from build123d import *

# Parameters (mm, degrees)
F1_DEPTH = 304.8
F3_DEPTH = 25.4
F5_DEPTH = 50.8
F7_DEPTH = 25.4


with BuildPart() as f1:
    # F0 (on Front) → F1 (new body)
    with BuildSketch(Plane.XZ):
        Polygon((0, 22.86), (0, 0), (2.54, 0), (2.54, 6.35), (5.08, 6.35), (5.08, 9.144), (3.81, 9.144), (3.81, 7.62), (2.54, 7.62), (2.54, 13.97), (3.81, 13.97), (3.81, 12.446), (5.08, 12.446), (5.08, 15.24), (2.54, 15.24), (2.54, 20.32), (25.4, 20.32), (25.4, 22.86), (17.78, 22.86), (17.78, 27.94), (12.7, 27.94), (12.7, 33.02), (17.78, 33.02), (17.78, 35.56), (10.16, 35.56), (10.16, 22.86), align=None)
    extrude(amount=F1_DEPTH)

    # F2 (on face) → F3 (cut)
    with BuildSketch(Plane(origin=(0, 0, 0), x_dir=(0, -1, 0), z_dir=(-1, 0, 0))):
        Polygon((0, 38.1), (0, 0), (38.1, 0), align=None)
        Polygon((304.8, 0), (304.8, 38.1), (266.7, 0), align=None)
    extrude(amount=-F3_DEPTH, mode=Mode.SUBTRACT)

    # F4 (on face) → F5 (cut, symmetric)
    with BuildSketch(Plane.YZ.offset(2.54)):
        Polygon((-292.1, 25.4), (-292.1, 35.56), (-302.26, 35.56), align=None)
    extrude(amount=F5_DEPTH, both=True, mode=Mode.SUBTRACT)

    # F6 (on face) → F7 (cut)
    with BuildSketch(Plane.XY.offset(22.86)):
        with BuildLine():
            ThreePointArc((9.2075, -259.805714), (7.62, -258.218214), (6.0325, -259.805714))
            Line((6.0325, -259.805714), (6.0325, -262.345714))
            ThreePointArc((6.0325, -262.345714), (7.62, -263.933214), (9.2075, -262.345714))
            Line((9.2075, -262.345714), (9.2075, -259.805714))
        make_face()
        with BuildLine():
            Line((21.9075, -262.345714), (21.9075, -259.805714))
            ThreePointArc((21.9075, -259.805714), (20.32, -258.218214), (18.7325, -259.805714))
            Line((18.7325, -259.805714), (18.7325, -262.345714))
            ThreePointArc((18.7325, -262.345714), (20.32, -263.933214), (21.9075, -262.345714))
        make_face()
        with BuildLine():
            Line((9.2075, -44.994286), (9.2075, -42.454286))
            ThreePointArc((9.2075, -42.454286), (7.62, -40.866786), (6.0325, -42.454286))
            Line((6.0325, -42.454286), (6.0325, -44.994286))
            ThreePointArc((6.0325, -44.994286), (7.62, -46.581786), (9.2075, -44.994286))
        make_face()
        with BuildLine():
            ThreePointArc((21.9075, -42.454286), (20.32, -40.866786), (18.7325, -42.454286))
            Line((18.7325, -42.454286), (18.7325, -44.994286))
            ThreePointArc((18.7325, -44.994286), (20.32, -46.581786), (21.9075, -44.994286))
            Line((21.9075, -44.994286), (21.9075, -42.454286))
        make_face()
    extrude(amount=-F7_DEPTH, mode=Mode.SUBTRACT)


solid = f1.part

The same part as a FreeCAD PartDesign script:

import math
import FreeCAD as App
import Part
import Sketcher
Q = App.Units.Quantity

doc = App.newDocument("Part")
body = doc.addObject("PartDesign::Body", "Body")

sketch1 = body.newObject("Sketcher::SketchObject", "Sketch")
sketch1.AttachmentSupport = (doc.getObject("XZ_Plane"), [""])
sketch1.MapMode = "FlatFace"
sketch1.addGeometry([
    Part.LineSegment(App.Vector(0, 22.9, 0), App.Vector(0, 0, 0)),
    Part.LineSegment(App.Vector(0, 0, 0), App.Vector(2.5, 0, 0)),
    Part.LineSegment(App.Vector(2.5, 0, 0), App.Vector(2.5, 6.3, 0)),
    Part.LineSegment(App.Vector(2.5, 6.3, 0), App.Vector(5.1, 6.3, 0)),
    Part.LineSegment(App.Vector(5.1, 6.3, 0), App.Vector(5.1, 9.1, 0)),
    Part.LineSegment(App.Vector(5.1, 9.1, 0), App.Vector(3.8, 9.1, 0)),
    Part.LineSegment(App.Vector(3.8, 9.1, 0), App.Vector(3.8, 7.6, 0)),
    Part.LineSegment(App.Vector(3.8, 7.6, 0), App.Vector(2.5, 7.6, 0)),
    Part.LineSegment(App.Vector(2.5, 7.6, 0), App.Vector(2.5, 14, 0)),
    Part.LineSegment(App.Vector(2.5, 14, 0), App.Vector(3.8, 14, 0)),
    Part.LineSegment(App.Vector(3.8, 14, 0), App.Vector(3.8, 12.4, 0)),
    Part.LineSegment(App.Vector(3.8, 12.4, 0), App.Vector(5.1, 12.4, 0)),
    Part.LineSegment(App.Vector(5.1, 12.4, 0), App.Vector(5.1, 15.2, 0)),
    Part.LineSegment(App.Vector(5.1, 15.2, 0), App.Vector(2.5, 15.2, 0)),
    Part.LineSegment(App.Vector(2.5, 15.2, 0), App.Vector(2.5, 20.3, 0)),
    Part.LineSegment(App.Vector(2.5, 20.3, 0), App.Vector(25.4, 20.3, 0)),
    Part.LineSegment(App.Vector(25.4, 20.3, 0), App.Vector(25.4, 22.9, 0)),
    Part.LineSegment(App.Vector(25.4, 22.9, 0), App.Vector(17.8, 22.9, 0)),
    Part.LineSegment(App.Vector(17.8, 22.9, 0), App.Vector(17.8, 27.9, 0)),
    Part.LineSegment(App.Vector(17.8, 27.9, 0), App.Vector(12.7, 27.9, 0)),
    Part.LineSegment(App.Vector(12.7, 27.9, 0), App.Vector(12.7, 33, 0)),
    Part.LineSegment(App.Vector(12.7, 33, 0), App.Vector(17.8, 33, 0)),
    Part.LineSegment(App.Vector(17.8, 33, 0), App.Vector(17.8, 35.6, 0)),
    Part.LineSegment(App.Vector(17.8, 35.6, 0), App.Vector(10.2, 35.6, 0)),
    Part.LineSegment(App.Vector(10.2, 35.6, 0), App.Vector(10.2, 22.9, 0)),
    Part.LineSegment(App.Vector(10.2, 22.9, 0), App.Vector(0, 22.9, 0)),
], False)
sketch1.addConstraint([
    Sketcher.Constraint("Coincident", 0, 2, 1, 1),
    Sketcher.Constraint("Coincident", 1, 2, 2, 1),
    Sketcher.Constraint("Coincident", 2, 2, 3, 1),
    Sketcher.Constraint("Coincident", 3, 2, 4, 1),
    Sketcher.Constraint("Coincident", 4, 2, 5, 1),
    Sketcher.Constraint("Coincident", 5, 2, 6, 1),
    Sketcher.Constraint("Coincident", 6, 2, 7, 1),
    Sketcher.Constraint("Coincident", 7, 2, 8, 1),
    Sketcher.Constraint("Coincident", 8, 2, 9, 1),
    Sketcher.Constraint("Coincident", 9, 2, 10, 1),
    Sketcher.Constraint("Coincident", 10, 2, 11, 1),
    Sketcher.Constraint("Coincident", 11, 2, 12, 1),
    Sketcher.Constraint("Coincident", 12, 2, 13, 1),
    Sketcher.Constraint("Coincident", 13, 2, 14, 1),
    Sketcher.Constraint("Coincident", 14, 2, 15, 1),
    Sketcher.Constraint("Coincident", 15, 2, 16, 1),
    Sketcher.Constraint("Coincident", 16, 2, 17, 1),
    Sketcher.Constraint("Coincident", 17, 2, 18, 1),
    Sketcher.Constraint("Coincident", 18, 2, 19, 1),
    Sketcher.Constraint("Coincident", 19, 2, 20, 1),
    Sketcher.Constraint("Coincident", 20, 2, 21, 1),
    Sketcher.Constraint("Coincident", 21, 2, 22, 1),
    Sketcher.Constraint("Coincident", 22, 2, 23, 1),
    Sketcher.Constraint("Coincident", 23, 2, 24, 1),
    Sketcher.Constraint("Coincident", 24, 2, 25, 1),
    Sketcher.Constraint("Coincident", 25, 2, 0, 1),
    Sketcher.Constraint("Vertical", 0),
    Sketcher.Constraint("Horizontal", 1),
    Sketcher.Constraint("Vertical", 2),
    Sketcher.Constraint("Horizontal", 3),
    Sketcher.Constraint("Vertical", 4),
    Sketcher.Constraint("Horizontal", 5),
    Sketcher.Constraint("Vertical", 6),
    Sketcher.Constraint("Horizontal", 7),
    Sketcher.Constraint("Vertical", 8),
    Sketcher.Constraint("Horizontal", 9),
    Sketcher.Constraint("Vertical", 10),
    Sketcher.Constraint("Horizontal", 11),
    Sketcher.Constraint("Vertical", 12),
    Sketcher.Constraint("Horizontal", 13),
    Sketcher.Constraint("Vertical", 14),
    Sketcher.Constraint("Horizontal", 15),
    Sketcher.Constraint("Vertical", 16),
    Sketcher.Constraint("Horizontal", 17),
    Sketcher.Constraint("Vertical", 18),
    Sketcher.Constraint("Horizontal", 19),
    Sketcher.Constraint("Vertical", 20),
    Sketcher.Constraint("Horizontal", 21),
    Sketcher.Constraint("Vertical", 22),
    Sketcher.Constraint("Horizontal", 23),
    Sketcher.Constraint("Vertical", 24),
    Sketcher.Constraint("Horizontal", 25),
    Sketcher.Constraint("Coincident", 0, 2, -1, 1),
    Sketcher.Constraint("Horizontal", 17, 2, 24, 2),
    Sketcher.Constraint("Vertical", 2, 2, 7, 2),
    Sketcher.Constraint("Vertical", 6, 2, 9, 2),
    Sketcher.Constraint("Vertical", 4, 2, 11, 2),
    Sketcher.Constraint("Vertical", 8, 2, 13, 2),
    Sketcher.Constraint("Vertical", 18, 2, 21, 2),
    Sketcher.Constraint("Equal", 1, 3),
    Sketcher.Constraint("Equal", 5, 7),
    Sketcher.Constraint("Equal", 17, 23),
    Sketcher.Constraint("Equal", 15, 0),
    Sketcher.Constraint("Equal", 2, 8),
    Sketcher.Constraint("Equal", 6, 10),
    Sketcher.Constraint("Equal", 4, 12),
    Sketcher.Constraint("Equal", 21, 14),
    Sketcher.Constraint("Equal", 13, 16),
    Sketcher.Constraint("Equal", 14, 18),
    Sketcher.Constraint("Equal", 18, 20),
    Sketcher.Constraint("Equal", 16, 22),
    Sketcher.Constraint("DistanceX", 1, 1, 1, 2, Q("0.1 in")),
    Sketcher.Constraint("DistanceX", 15, 1, 15, 2, Q("0.9 in")),
    Sketcher.Constraint("DistanceX", 17, 2, 17, 1, Q("0.3 in")),
    Sketcher.Constraint("DistanceX", 19, 2, 19, 1, Q("0.2 in")),
    Sketcher.Constraint("DistanceY", 2, 1, 2, 2, Q("0.25 in")),
    Sketcher.Constraint("DistanceY", 4, 1, 4, 2, Q("0.11 in")),
])
pad1 = body.newObject("PartDesign::Pad", "Pad")
pad1.Profile = sketch1
pad1.Length = Q("12 in")

sketch2 = body.newObject("Sketcher::SketchObject", "Sketch001")
sketch2.AttachmentSupport = (doc.getObject("YZ_Plane"), [""])
sketch2.MapMode = "FlatFace"
sketch2.addGeometry([
    Part.LineSegment(App.Vector(0, 38, 0), App.Vector(0, 0, 0)),
    Part.LineSegment(App.Vector(0, 0, 0), App.Vector(-38, 0, 0)),
    Part.LineSegment(App.Vector(-38, 0, 0), App.Vector(0, 38, 0)),
    Part.LineSegment(App.Vector(-305, 0, 0), App.Vector(-305, 38, 0)),
    Part.LineSegment(App.Vector(-305, 38, 0), App.Vector(-267, 0, 0)),
    Part.LineSegment(App.Vector(-267, 0, 0), App.Vector(-305, 0, 0)),
], False)
sketch2.addConstraint([
    Sketcher.Constraint("Coincident", 0, 2, 1, 1),
    Sketcher.Constraint("Coincident", 1, 2, 2, 1),
    Sketcher.Constraint("Coincident", 2, 2, 0, 1),
    Sketcher.Constraint("Coincident", 3, 2, 4, 1),
    Sketcher.Constraint("Coincident", 4, 2, 5, 1),
    Sketcher.Constraint("Coincident", 5, 2, 3, 1),
    Sketcher.Constraint("Vertical", 0),
    Sketcher.Constraint("Horizontal", 1),
    Sketcher.Constraint("Vertical", 3),
    Sketcher.Constraint("Horizontal", 5),
    Sketcher.Constraint("Coincident", 0, 2, -1, 1),
    Sketcher.Constraint("PointOnObject", 4, 2, -1),
    Sketcher.Constraint("Perpendicular", 2, 4),
    Sketcher.Constraint("Horizontal", 2, 2, 3, 2),
    Sketcher.Constraint("Equal", 1, 5),
    Sketcher.Constraint("DistanceX", 1, 2, 1, 1, Q("1.5 in")),
    Sketcher.Constraint("DistanceX", 3, 2, -1, 1, Q("12 in")),
])
pocket1 = body.newObject("PartDesign::Pocket", "Pocket")
pocket1.Profile = sketch2
pocket1.Length = Q("1 in")
pocket1.Reversed = True

sketch3 = body.newObject("Sketcher::SketchObject", "Sketch002")
sketch3.AttachmentSupport = (doc.getObject("YZ_Plane"), [""])
sketch3.MapMode = "FlatFace"
sketch3.AttachmentOffset = App.Placement(App.Vector(0, 0, 0.1 * 25.4), App.Rotation())
sketch3.addGeometry([
    Part.LineSegment(App.Vector(-292, 25, 0), App.Vector(-292, 36, 0)),
    Part.LineSegment(App.Vector(-292, 36, 0), App.Vector(-302, 36, 0)),
    Part.LineSegment(App.Vector(-302, 36, 0), App.Vector(-292, 25, 0)),
], False)
sketch3.addConstraint([
    Sketcher.Constraint("Coincident", 0, 2, 1, 1),
    Sketcher.Constraint("Coincident", 1, 2, 2, 1),
    Sketcher.Constraint("Coincident", 2, 2, 0, 1),
    Sketcher.Constraint("Vertical", 0),
    Sketcher.Constraint("Horizontal", 1),
    Sketcher.Constraint("Equal", 1, 0),
    Sketcher.Constraint("DistanceX", 1, 2, 1, 1, Q("0.4 in")),
    Sketcher.Constraint("DistanceY", -1, 1, 2, 2, Q("1 in")),
    Sketcher.Constraint("DistanceX", 0, 2, -1, 1, Q("11.5 in")),
])
pocket2 = body.newObject("PartDesign::Pocket", "Pocket001")
pocket2.Profile = sketch3
pocket2.Length = Q("4 in")
pocket2.Midplane = True

sketch4 = body.newObject("Sketcher::SketchObject", "Sketch003")
sketch4.AttachmentSupport = (doc.getObject("XY_Plane"), [""])
sketch4.MapMode = "FlatFace"
sketch4.AttachmentOffset = App.Placement(App.Vector(0, 0, 0.9 * 25.4), App.Rotation())
sketch4.addGeometry([
    Part.ArcOfCircle(Part.Circle(App.Vector(7.6, -259.8, 0), App.Vector(0, 0, 1), 1.6), math.radians(0), math.radians(180)),
    Part.LineSegment(App.Vector(6, -259.8, 0), App.Vector(6, -262.3, 0)),
    Part.ArcOfCircle(Part.Circle(App.Vector(7.6, -262.3, 0), App.Vector(0, 0, 1), 1.6), math.radians(180), math.radians(360)),
    Part.LineSegment(App.Vector(9.2, -262.3, 0), App.Vector(9.2, -259.8, 0)),
    Part.LineSegment(App.Vector(21.9, -262.3, 0), App.Vector(21.9, -259.8, 0)),
    Part.ArcOfCircle(Part.Circle(App.Vector(20.3, -259.8, 0), App.Vector(0, 0, 1), 1.6), math.radians(0), math.radians(180)),
    Part.LineSegment(App.Vector(18.7, -259.8, 0), App.Vector(18.7, -262.3, 0)),
    Part.ArcOfCircle(Part.Circle(App.Vector(20.3, -262.3, 0), App.Vector(0, 0, 1), 1.6), math.radians(180), math.radians(360)),
    Part.LineSegment(App.Vector(9.2, -45, 0), App.Vector(9.2, -42.5, 0)),
    Part.ArcOfCircle(Part.Circle(App.Vector(7.6, -42.5, 0), App.Vector(0, 0, 1), 1.6), math.radians(0), math.radians(180)),
    Part.LineSegment(App.Vector(6, -42.5, 0), App.Vector(6, -45, 0)),
    Part.ArcOfCircle(Part.Circle(App.Vector(7.6, -45, 0), App.Vector(0, 0, 1), 1.6), math.radians(180), math.radians(360)),
    Part.ArcOfCircle(Part.Circle(App.Vector(20.3, -42.5, 0), App.Vector(0, 0, 1), 1.6), math.radians(0), math.radians(180)),
    Part.LineSegment(App.Vector(18.7, -42.5, 0), App.Vector(18.7, -45, 0)),
    Part.ArcOfCircle(Part.Circle(App.Vector(20.3, -45, 0), App.Vector(0, 0, 1), 1.6), math.radians(180), math.radians(360)),
    Part.LineSegment(App.Vector(21.9, -45, 0), App.Vector(21.9, -42.5, 0)),
], False)
sketch4.addConstraint([
    Sketcher.Constraint("Tangent", 0, 2, 1, 1),
    Sketcher.Constraint("Tangent", 1, 2, 2, 1),
    Sketcher.Constraint("Tangent", 2, 2, 3, 1),
    Sketcher.Constraint("Tangent", 3, 2, 0, 1),
    Sketcher.Constraint("Tangent", 4, 2, 5, 1),
    Sketcher.Constraint("Tangent", 5, 2, 6, 1),
    Sketcher.Constraint("Tangent", 6, 2, 7, 1),
    Sketcher.Constraint("Tangent", 7, 2, 4, 1),
    Sketcher.Constraint("Tangent", 8, 2, 9, 1),
    Sketcher.Constraint("Tangent", 9, 2, 10, 1),
    Sketcher.Constraint("Tangent", 10, 2, 11, 1),
    Sketcher.Constraint("Tangent", 11, 2, 8, 1),
    Sketcher.Constraint("Tangent", 12, 2, 13, 1),
    Sketcher.Constraint("Tangent", 13, 2, 14, 1),
    Sketcher.Constraint("Tangent", 14, 2, 15, 1),
    Sketcher.Constraint("Tangent", 15, 2, 12, 1),
    Sketcher.Constraint("Vertical", 1),
    Sketcher.Constraint("Vertical", 3),
    Sketcher.Constraint("Vertical", 4),
    Sketcher.Constraint("Vertical", 6),
    Sketcher.Constraint("Vertical", 8),
    Sketcher.Constraint("Vertical", 10),
    Sketcher.Constraint("Vertical", 13),
    Sketcher.Constraint("Vertical", 15),
    Sketcher.Constraint("Equal", 2, 5),
    Sketcher.Constraint("Equal", 7, 9),
    Sketcher.Constraint("Equal", 11, 12),
    Sketcher.Constraint("Horizontal", 0, 3, 5, 3),
    Sketcher.Constraint("Horizontal", 2, 3, 7, 3),
    Sketcher.Constraint("Horizontal", 9, 3, 12, 3),
    Sketcher.Constraint("Horizontal", 11, 3, 14, 3),
    Sketcher.Constraint("Vertical", 2, 3, 9, 3),
    Sketcher.Constraint("Vertical", 7, 3, 12, 3),
    Sketcher.Constraint("Equal", 6, 8),
    Sketcher.Constraint("DistanceY", 1, 2, 1, 1, Q("0.1 in")),
    Sketcher.Constraint("Radius", 0, Q("0.0625 in")),
    Sketcher.Constraint("DistanceX", -1, 1, 0, 3, Q("0.3 in")),
    Sketcher.Constraint("DistanceX", -1, 1, 5, 3, Q("0.8 in")),
    Sketcher.Constraint("DistanceY", 0, 3, 9, 3, 217.351428),
    Sketcher.Constraint("DistanceY", 0, 3, -1, 1, 259.805714),
])
pocket3 = body.newObject("PartDesign::Pocket", "Pocket002")
pocket3.Profile = sketch4
pocket3.Length = Q("1 in")

doc.recompute()
